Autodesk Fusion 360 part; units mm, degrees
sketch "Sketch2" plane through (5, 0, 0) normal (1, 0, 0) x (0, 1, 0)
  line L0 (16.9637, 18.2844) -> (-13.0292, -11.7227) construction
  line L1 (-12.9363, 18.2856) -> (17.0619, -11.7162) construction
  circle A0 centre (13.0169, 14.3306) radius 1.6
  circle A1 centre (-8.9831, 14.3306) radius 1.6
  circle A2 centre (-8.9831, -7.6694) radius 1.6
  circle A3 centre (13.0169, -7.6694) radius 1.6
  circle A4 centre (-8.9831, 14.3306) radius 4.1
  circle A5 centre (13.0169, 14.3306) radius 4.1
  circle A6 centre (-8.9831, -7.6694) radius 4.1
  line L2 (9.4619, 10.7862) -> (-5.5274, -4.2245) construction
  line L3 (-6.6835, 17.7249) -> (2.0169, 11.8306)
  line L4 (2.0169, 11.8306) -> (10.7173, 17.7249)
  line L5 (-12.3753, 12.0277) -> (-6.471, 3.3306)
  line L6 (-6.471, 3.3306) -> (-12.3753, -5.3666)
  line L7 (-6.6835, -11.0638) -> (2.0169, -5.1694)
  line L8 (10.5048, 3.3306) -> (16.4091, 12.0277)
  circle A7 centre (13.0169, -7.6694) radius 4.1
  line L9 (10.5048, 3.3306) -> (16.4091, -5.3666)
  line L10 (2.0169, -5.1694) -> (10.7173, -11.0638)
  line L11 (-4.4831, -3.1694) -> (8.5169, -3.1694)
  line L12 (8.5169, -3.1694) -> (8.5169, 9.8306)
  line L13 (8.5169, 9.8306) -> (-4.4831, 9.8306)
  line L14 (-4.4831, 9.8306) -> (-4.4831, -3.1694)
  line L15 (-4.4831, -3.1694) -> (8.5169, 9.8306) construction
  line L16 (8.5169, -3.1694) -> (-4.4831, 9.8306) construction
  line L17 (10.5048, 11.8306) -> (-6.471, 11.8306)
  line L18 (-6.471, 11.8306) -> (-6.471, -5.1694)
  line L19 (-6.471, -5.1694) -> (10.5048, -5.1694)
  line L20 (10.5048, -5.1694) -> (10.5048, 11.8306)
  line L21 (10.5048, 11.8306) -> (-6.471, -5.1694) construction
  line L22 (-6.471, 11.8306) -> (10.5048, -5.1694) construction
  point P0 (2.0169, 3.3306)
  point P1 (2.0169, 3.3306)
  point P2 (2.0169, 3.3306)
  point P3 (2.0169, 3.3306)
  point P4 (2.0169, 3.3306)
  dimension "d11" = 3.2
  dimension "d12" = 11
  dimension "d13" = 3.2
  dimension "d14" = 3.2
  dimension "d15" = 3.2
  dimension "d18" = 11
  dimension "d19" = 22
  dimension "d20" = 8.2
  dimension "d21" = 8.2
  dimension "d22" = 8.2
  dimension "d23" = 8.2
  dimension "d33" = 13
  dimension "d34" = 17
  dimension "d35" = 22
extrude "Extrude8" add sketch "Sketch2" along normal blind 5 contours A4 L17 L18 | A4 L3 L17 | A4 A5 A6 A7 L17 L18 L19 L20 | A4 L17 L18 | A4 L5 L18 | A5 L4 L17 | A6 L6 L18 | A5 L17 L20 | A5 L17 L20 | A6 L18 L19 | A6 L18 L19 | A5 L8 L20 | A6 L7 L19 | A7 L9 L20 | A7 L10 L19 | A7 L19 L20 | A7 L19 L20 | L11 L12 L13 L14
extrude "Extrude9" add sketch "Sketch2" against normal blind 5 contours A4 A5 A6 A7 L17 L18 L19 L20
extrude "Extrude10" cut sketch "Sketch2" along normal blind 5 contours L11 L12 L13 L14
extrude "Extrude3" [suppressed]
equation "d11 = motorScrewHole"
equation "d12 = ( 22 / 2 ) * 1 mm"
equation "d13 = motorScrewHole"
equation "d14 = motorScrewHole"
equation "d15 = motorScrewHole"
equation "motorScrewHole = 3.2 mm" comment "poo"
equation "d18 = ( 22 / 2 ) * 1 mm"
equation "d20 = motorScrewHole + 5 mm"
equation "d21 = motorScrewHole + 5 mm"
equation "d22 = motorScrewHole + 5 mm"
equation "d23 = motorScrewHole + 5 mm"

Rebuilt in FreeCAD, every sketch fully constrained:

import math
import FreeCAD as App
import Part
import Sketcher
from FreeCAD import Vector


def add_polygon(sketch, points):
    """Adds a closed chain of lines whose ends are joined by coincident constraints."""
    first, n = sketch.GeometryCount, len(points)
    for a, b in zip(points, points[1:] + points[:1]):
        sketch.addGeometry(Part.LineSegment(App.Vector(*a, 0), App.Vector(*b, 0)), False)
    for i in range(n):
        sketch.addConstraint(Sketcher.Constraint("Coincident", first + i, 2, first + (i + 1) % n, 1))

doc = App.newDocument("Part")
body = doc.addObject("PartDesign::Body", "Body")

# Sketch on YZ plane
sketch1 = body.newObject("Sketcher::SketchObject", "Sketch")
sketch1.AttachmentSupport = (doc.getObject("YZ_Plane"), [""])
sketch1.MapMode = "FlatFace"
sketch1.AttachmentOffset = App.Placement(Vector(0, 0, 5), App.Rotation())
sketch1.addGeometry(Part.ArcOfCircle(Part.Circle(Vector(-9, 14.3, 0), Vector(0, 0, 1), 4.1), math.radians(56), math.radians(214)), False)
sketch1.addGeometry(Part.LineSegment(Vector(-12.4, 12, 0), Vector(-6.5, 3.3, 0)), False)
sketch1.addGeometry(Part.LineSegment(Vector(-6.5, 3.3, 0), Vector(-12.4, -5.4, 0)), False)
sketch1.addGeometry(Part.ArcOfCircle(Part.Circle(Vector(-9, -7.7, 0), Vector(0, 0, 1), 4.1), math.radians(146), math.radians(304)), False)
sketch1.addGeometry(Part.LineSegment(Vector(-6.7, -11.1, 0), Vector(2, -5.2, 0)), False)
sketch1.addGeometry(Part.LineSegment(Vector(2, -5.2, 0), Vector(10.7, -11.1, 0)), False)
sketch1.addGeometry(Part.ArcOfCircle(Part.Circle(Vector(13, -7.7, 0), Vector(0, 0, 1), 4.1), math.radians(-124), math.radians(34)), False)
sketch1.addGeometry(Part.LineSegment(Vector(16.4, -5.4, 0), Vector(10.5, 3.3, 0)), False)
sketch1.addGeometry(Part.LineSegment(Vector(10.5, 3.3, 0), Vector(16.4, 12, 0)), False)
sketch1.addGeometry(Part.ArcOfCircle(Part.Circle(Vector(13, 14.3, 0), Vector(0, 0, 1), 4.1), math.radians(-34), math.radians(124)), False)
sketch1.addGeometry(Part.LineSegment(Vector(10.7, 17.7, 0), Vector(2, 11.8, 0)), False)
sketch1.addGeometry(Part.LineSegment(Vector(2, 11.8, 0), Vector(-6.7, 17.7, 0)), False)
sketch1.addGeometry(Part.Circle(Vector(-9, 14.3, 0), Vector(0, 0, 1), 1.6), False)
sketch1.addGeometry(Part.Circle(Vector(13, 14.3, 0), Vector(0, 0, 1), 1.6), False)
sketch1.addGeometry(Part.Circle(Vector(13, -7.7, 0), Vector(0, 0, 1), 1.6), False)
sketch1.addGeometry(Part.Circle(Vector(-9, -7.7, 0), Vector(0, 0, 1), 1.6), False)
sketch1.addConstraint(Sketcher.Constraint("Tangent", 0, 2, 1, 1))
sketch1.addConstraint(Sketcher.Constraint("Coincident", 1, 2, 2, 1))
sketch1.addConstraint(Sketcher.Constraint("Tangent", 2, 2, 3, 1))
sketch1.addConstraint(Sketcher.Constraint("Tangent", 3, 2, 4, 1))
sketch1.addConstraint(Sketcher.Constraint("Coincident", 4, 2, 5, 1))
sketch1.addConstraint(Sketcher.Constraint("Tangent", 5, 2, 6, 1))
sketch1.addConstraint(Sketcher.Constraint("Tangent", 6, 2, 7, 1))
sketch1.addConstraint(Sketcher.Constraint("Coincident", 7, 2, 8, 1))
sketch1.addConstraint(Sketcher.Constraint("Tangent", 8, 2, 9, 1))
sketch1.addConstraint(Sketcher.Constraint("Tangent", 9, 2, 10, 1))
sketch1.addConstraint(Sketcher.Constraint("Coincident", 10, 2, 11, 1))
sketch1.addConstraint(Sketcher.Constraint("Tangent", 11, 2, 0, 1))
sketch1.addConstraint(Sketcher.Constraint("Coincident", 12, 3, 0, 3))
sketch1.addConstraint(Sketcher.Constraint("Coincident", 13, 3, 9, 3))
sketch1.addConstraint(Sketcher.Constraint("Coincident", 14, 3, 6, 3))
sketch1.addConstraint(Sketcher.Constraint("Coincident", 15, 3, 3, 3))
sketch1.addConstraint(Sketcher.Constraint("Equal", 0, 3))
sketch1.addConstraint(Sketcher.Constraint("Equal", 3, 6))
sketch1.addConstraint(Sketcher.Constraint("Equal", 6, 9))
sketch1.addConstraint(Sketcher.Constraint("Equal", 12, 13))
sketch1.addConstraint(Sketcher.Constraint("Equal", 13, 14))
sketch1.addConstraint(Sketcher.Constraint("Equal", 14, 15))
sketch1.addConstraint(Sketcher.Constraint("Parallel", 1, 7))
sketch1.addConstraint(Sketcher.Constraint("Parallel", 2, 8))
sketch1.addConstraint(Sketcher.Constraint("Parallel", 4, 10))
sketch1.addConstraint(Sketcher.Constraint("Parallel", 5, 11))
sketch1.addConstraint(Sketcher.Constraint("Horizontal", 3, 3, 6, 3))
sketch1.addConstraint(Sketcher.Constraint("Horizontal", 0, 3, 9, 3))
sketch1.addConstraint(Sketcher.Constraint("Horizontal", 3, 2, 5, 2))
sketch1.addConstraint(Sketcher.Constraint("Horizontal", 2, 2, 6, 2))
sketch1.addConstraint(Sketcher.Constraint("Horizontal", 1, 2, 7, 2))
sketch1.addConstraint(Sketcher.Constraint("Vertical", 0, 3, 3, 3))
sketch1.addConstraint(Sketcher.Constraint("Diameter", 12, 3.2))
sketch1.addConstraint(Sketcher.Constraint("Radius", 0, 4.1))
sketch1.addConstraint(Sketcher.Constraint("DistanceY", 3, 3, 0, 3, 22.0))
sketch1.addConstraint(Sketcher.Constraint("DistanceX", 3, 3, 6, 3, 22.0))
sketch1.addConstraint(Sketcher.Constraint("DistanceY", 3, 3, 4, 2, 2.5))
sketch1.addConstraint(Sketcher.Constraint("Distance", 1, 10.512))
sketch1.addConstraint(Sketcher.Constraint("DistanceX", 0, 3, -1, 1, 8.983))
sketch1.addConstraint(Sketcher.Constraint("DistanceY", -1, 1, 9, 2, 17.725))
pad1 = body.newObject("PartDesign::Pad", "Pad")
pad1.Profile = sketch1
pad1.Length = 5

# Sketch on YZ plane
sketch2 = body.newObject("Sketcher::SketchObject", "Sketch001")
sketch2.AttachmentSupport = (doc.getObject("YZ_Plane"), [""])
sketch2.MapMode = "FlatFace"
sketch2.AttachmentOffset = App.Placement(Vector(0, 0, 5), App.Rotation())
sketch2.addGeometry(Part.LineSegment(Vector(9.8, 11.8, 0), Vector(-5.7, 11.8, 0)), False)  # 0
sketch2.addGeometry(Part.ArcOfCircle(Part.Circle(Vector(-9, 14.3, 0), Vector(0, 0, 1), 4.1), math.radians(-52.21), math.radians(-37.57)), False)  # 1
sketch2.addGeometry(Part.LineSegment(Vector(-6.5, 11.1, 0), Vector(-6.5, -4.4, 0)), False)  # 2
sketch2.addGeometry(Part.ArcOfCircle(Part.Circle(Vector(-9, -7.7, 0), Vector(0, 0, 1), 4.1), math.radians(37.57), math.radians(52.21)), False)  # 3
sketch2.addGeometry(Part.LineSegment(Vector(-5.7, -5.2, 0), Vector(9.8, -5.2, 0)), False)  # 4
sketch2.addGeometry(Part.ArcOfCircle(Part.Circle(Vector(13, -7.7, 0), Vector(0, 0, 1), 4.1), math.radians(127.79), math.radians(142.43)), False)  # 5
sketch2.addGeometry(Part.LineSegment(Vector(10.5, -4.4, 0), Vector(10.5, 11.1, 0)), False)  # 6
sketch2.addGeometry(Part.ArcOfCircle(Part.Circle(Vector(13, 14.3, 0), Vector(0, 0, 1), 4.1), math.radians(-142.43), math.radians(-127.79)), False)  # 7
add_polygon(sketch2, [(8.5, -3.2), (-4.5, -3.2), (-4.5, 9.8), (8.5, 9.8)])  # lines 8-11
sketch2.addConstraint(Sketcher.Constraint("Coincident", 0, 2, 1, 2))
sketch2.addConstraint(Sketcher.Constraint("Coincident", 1, 1, 2, 1))
sketch2.addConstraint(Sketcher.Constraint("Coincident", 2, 2, 3, 2))
sketch2.addConstraint(Sketcher.Constraint("Coincident", 3, 1, 4, 1))
sketch2.addConstraint(Sketcher.Constraint("Coincident", 4, 2, 5, 2))
sketch2.addConstraint(Sketcher.Constraint("Coincident", 5, 1, 6, 1))
sketch2.addConstraint(Sketcher.Constraint("Coincident", 6, 2, 7, 2))
sketch2.addConstraint(Sketcher.Constraint("Coincident", 7, 1, 0, 1))
sketch2.addConstraint(Sketcher.Constraint("Horizontal", 0))
sketch2.addConstraint(Sketcher.Constraint("Vertical", 2))
sketch2.addConstraint(Sketcher.Constraint("Horizontal", 4))
sketch2.addConstraint(Sketcher.Constraint("Vertical", 6))
sketch2.addConstraint(Sketcher.Constraint("Horizontal", 8))
sketch2.addConstraint(Sketcher.Constraint("Vertical", 9))
sketch2.addConstraint(Sketcher.Constraint("Horizontal", 10))
sketch2.addConstraint(Sketcher.Constraint("Vertical", 11))
sketch2.addConstraint(Sketcher.Constraint("Equal", 1, 3))
sketch2.addConstraint(Sketcher.Constraint("Equal", 3, 5))
sketch2.addConstraint(Sketcher.Constraint("Equal", 5, 7))
sketch2.addConstraint(Sketcher.Constraint("Horizontal", 3, 3, 5, 3))
sketch2.addConstraint(Sketcher.Constraint("Horizontal", 1, 3, 7, 3))
sketch2.addConstraint(Sketcher.Constraint("Horizontal", 2, 2, 5, 1))
sketch2.addConstraint(Sketcher.Constraint("Horizontal", 1, 1, 6, 2))
sketch2.addConstraint(Sketcher.Constraint("Vertical", 1, 3, 3, 3))
sketch2.addConstraint(Sketcher.Constraint("Vertical", 0, 2, 3, 1))
sketch2.addConstraint(Sketcher.Constraint("Equal", 10, 9))
sketch2.addConstraint(Sketcher.Constraint("Radius", 1, 4.1))
sketch2.addConstraint(Sketcher.Constraint("DistanceX", 8, 2, 8, 1, 13.0))
sketch2.addConstraint(Sketcher.Constraint("DistanceY", 3, 3, 1, 3, 22.0))
sketch2.addConstraint(Sketcher.Constraint("DistanceX", 3, 3, 5, 3, 22.0))
sketch2.addConstraint(Sketcher.Constraint("DistanceY", 3, 1, 0, 2, 17.0))
sketch2.addConstraint(Sketcher.Constraint("DistanceY", 3, 1, 8, 2, 2.0))
sketch2.addConstraint(Sketcher.Constraint("DistanceX", 3, 3, 8, 2, 4.5))
sketch2.addConstraint(Sketcher.Constraint("DistanceY", 2, 2, 2, 1, 15.5195))
sketch2.addConstraint(Sketcher.Constraint("DistanceX", 1, 3, -1, 1, 8.983))
sketch2.addConstraint(Sketcher.Constraint("DistanceY", -1, 1, 1, 3, 14.3306))
pad2 = body.newObject("PartDesign::Pad", "Pad001")
pad2.Profile = sketch2
pad2.Length = 5
pad2.Reversed = True

# Sketch on YZ plane
sketch3 = body.newObject("Sketcher::SketchObject", "Sketch002")
sketch3.AttachmentSupport = (doc.getObject("YZ_Plane"), [""])
sketch3.MapMode = "FlatFace"
sketch3.AttachmentOffset = App.Placement(Vector(0, 0, 5), App.Rotation())
add_polygon(sketch3, [(-4, 10), (-4, -3), (9, -3), (9, 10)])  # lines 0-3
sketch3.addConstraint(Sketcher.Constraint("Vertical", 0))
sketch3.addConstraint(Sketcher.Constraint("Horizontal", 1))
sketch3.addConstraint(Sketcher.Constraint("Vertical", 2))
sketch3.addConstraint(Sketcher.Constraint("Horizontal", 3))
sketch3.addConstraint(Sketcher.Constraint("Equal", 3, 0))
sketch3.addConstraint(Sketcher.Constraint("DistanceX", 1, 1, 1, 2, 13.0))
sketch3.addConstraint(Sketcher.Constraint("DistanceX", 0, 2, -1, 1, 4.483))
sketch3.addConstraint(Sketcher.Constraint("DistanceY", 0, 2, -1, 1, 3.1694))
pocket1 = body.newObject("PartDesign::Pocket", "Pocket")
pocket1.Profile = sketch3
pocket1.Length = 5
pocket1.Reversed = True

doc.recompute()
